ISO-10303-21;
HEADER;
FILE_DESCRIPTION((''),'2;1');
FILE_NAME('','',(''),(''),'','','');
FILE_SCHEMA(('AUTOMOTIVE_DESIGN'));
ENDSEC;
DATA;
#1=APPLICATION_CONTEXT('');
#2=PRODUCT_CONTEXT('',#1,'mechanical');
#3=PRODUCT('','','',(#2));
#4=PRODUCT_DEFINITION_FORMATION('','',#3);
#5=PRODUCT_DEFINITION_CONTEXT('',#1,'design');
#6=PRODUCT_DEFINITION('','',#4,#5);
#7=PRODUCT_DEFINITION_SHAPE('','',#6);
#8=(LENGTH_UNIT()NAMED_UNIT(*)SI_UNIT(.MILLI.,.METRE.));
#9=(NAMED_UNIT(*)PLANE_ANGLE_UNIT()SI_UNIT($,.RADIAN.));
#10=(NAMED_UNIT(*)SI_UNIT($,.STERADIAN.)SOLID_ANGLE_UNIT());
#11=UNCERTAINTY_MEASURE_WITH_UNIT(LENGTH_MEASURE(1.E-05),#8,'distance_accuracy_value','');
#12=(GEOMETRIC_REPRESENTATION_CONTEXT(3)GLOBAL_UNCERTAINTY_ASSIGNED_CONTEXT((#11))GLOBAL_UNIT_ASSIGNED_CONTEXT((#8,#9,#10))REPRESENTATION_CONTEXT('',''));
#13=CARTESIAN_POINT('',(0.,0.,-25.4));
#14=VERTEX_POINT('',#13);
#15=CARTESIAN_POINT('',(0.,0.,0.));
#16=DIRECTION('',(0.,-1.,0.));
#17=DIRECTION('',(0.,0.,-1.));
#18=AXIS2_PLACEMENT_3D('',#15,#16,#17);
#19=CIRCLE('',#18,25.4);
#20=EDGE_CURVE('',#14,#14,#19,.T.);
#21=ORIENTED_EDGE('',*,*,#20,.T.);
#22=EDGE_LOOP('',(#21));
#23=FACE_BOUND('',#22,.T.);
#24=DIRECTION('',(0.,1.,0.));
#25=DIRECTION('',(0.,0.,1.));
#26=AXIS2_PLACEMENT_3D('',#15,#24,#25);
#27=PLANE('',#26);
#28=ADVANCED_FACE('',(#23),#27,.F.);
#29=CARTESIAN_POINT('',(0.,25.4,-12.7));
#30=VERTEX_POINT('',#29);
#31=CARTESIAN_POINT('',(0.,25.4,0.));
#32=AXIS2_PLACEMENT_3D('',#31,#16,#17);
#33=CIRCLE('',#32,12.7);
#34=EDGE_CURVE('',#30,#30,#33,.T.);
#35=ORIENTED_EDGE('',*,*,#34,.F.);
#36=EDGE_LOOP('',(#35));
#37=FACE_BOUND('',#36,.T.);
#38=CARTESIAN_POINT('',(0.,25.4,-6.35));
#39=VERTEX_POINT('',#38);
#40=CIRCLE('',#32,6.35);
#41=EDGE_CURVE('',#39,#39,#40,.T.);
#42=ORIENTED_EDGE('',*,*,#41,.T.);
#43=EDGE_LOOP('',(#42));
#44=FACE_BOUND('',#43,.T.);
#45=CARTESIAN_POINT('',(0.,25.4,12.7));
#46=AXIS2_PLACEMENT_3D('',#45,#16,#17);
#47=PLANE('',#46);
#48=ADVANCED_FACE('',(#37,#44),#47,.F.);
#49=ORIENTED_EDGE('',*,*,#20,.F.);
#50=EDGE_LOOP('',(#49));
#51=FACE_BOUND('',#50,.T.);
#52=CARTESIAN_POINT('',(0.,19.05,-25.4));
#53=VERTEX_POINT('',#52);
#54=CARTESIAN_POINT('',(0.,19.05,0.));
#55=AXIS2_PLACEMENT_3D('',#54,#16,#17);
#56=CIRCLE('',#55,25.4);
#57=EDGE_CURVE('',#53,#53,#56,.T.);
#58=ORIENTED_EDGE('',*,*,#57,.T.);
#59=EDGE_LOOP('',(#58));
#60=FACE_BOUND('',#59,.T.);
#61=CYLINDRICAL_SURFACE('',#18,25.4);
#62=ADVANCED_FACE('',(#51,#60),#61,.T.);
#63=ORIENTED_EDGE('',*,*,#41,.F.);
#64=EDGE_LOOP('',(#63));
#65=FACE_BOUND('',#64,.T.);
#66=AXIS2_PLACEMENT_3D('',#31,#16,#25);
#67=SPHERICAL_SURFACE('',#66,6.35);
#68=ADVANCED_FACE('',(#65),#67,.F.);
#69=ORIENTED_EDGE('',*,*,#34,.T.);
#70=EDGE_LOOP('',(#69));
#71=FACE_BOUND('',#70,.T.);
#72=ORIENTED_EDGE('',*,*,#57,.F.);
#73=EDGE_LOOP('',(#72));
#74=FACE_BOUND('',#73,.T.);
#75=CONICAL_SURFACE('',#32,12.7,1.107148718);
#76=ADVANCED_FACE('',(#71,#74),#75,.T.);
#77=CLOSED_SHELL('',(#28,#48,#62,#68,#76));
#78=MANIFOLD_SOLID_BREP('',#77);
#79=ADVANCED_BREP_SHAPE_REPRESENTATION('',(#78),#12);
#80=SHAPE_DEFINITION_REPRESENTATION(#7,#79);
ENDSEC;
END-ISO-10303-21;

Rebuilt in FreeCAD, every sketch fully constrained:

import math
import FreeCAD as App
import Part
import Sketcher

V = App.Vector
Q = App.Units.Quantity

doc = App.newDocument("Part")
body = doc.addObject("PartDesign::Body", "Body")

sketch1 = body.newObject("Sketcher::SketchObject", "Sketch")
sketch1.AttachmentSupport = (doc.getObject("YZ_Plane"), [""])
sketch1.MapMode = "FlatFace"
sketch1.addGeometry(Part.LineSegment(V(0, 25, 0), V(0, 0, 0)), False)
sketch1.addGeometry(Part.LineSegment(V(0, 0, 0), V(19, 0, 0)), False)
sketch1.addGeometry(Part.ArcOfCircle(Part.Circle(V(25, 0, 0), V(0, 0, 1), 6), math.radians(90), math.radians(180)), False)
sketch1.addGeometry(Part.LineSegment(V(25, 6, 0), V(25, 13, 0)), False)
sketch1.addGeometry(Part.LineSegment(V(25, 13, 0), V(19, 25, 0)), False)
sketch1.addGeometry(Part.LineSegment(V(19, 25, 0), V(0, 25, 0)), False)
sketch1.addConstraint(Sketcher.Constraint("Coincident", 0, 2, 1, 1))
sketch1.addConstraint(Sketcher.Constraint("Coincident", 1, 2, 2, 2))
sketch1.addConstraint(Sketcher.Constraint("Coincident", 2, 1, 3, 1))
sketch1.addConstraint(Sketcher.Constraint("Coincident", 3, 2, 4, 1))
sketch1.addConstraint(Sketcher.Constraint("Coincident", 4, 2, 5, 1))
sketch1.addConstraint(Sketcher.Constraint("Coincident", 5, 2, 0, 1))
sketch1.addConstraint(Sketcher.Constraint("Vertical", 0))
sketch1.addConstraint(Sketcher.Constraint("Horizontal", 1))
sketch1.addConstraint(Sketcher.Constraint("Vertical", 3))
sketch1.addConstraint(Sketcher.Constraint("Horizontal", 5))
sketch1.addConstraint(Sketcher.Constraint("Coincident", 0, 2, -1, 1))
sketch1.addConstraint(Sketcher.Constraint("PointOnObject", 2, 3, -1))
sketch1.addConstraint(Sketcher.Constraint("Vertical", 1, 2, 4, 2))
sketch1.addConstraint(Sketcher.Constraint("DistanceY", 0, 2, 0, 1, Q("1 in")))
sketch1.addConstraint(Sketcher.Constraint("Radius", 2, Q("0.25 in")))
sketch1.addConstraint(Sketcher.Constraint("DistanceX", -1, 1, 2, 3, Q("1 in")))
sketch1.addConstraint(Sketcher.Constraint("DistanceX", -1, 1, 2, 1, Q("1 in")))
sketch1.addConstraint(Sketcher.Constraint("DistanceY", 3, 1, 3, 2, Q("0.25 in")))
revolution = body.newObject("PartDesign::Revolution", "Revolution")
revolution.Profile = sketch1
revolution.ReferenceAxis = (sketch1, ["H_Axis"])
revolution.Angle = 360

doc.recompute()
